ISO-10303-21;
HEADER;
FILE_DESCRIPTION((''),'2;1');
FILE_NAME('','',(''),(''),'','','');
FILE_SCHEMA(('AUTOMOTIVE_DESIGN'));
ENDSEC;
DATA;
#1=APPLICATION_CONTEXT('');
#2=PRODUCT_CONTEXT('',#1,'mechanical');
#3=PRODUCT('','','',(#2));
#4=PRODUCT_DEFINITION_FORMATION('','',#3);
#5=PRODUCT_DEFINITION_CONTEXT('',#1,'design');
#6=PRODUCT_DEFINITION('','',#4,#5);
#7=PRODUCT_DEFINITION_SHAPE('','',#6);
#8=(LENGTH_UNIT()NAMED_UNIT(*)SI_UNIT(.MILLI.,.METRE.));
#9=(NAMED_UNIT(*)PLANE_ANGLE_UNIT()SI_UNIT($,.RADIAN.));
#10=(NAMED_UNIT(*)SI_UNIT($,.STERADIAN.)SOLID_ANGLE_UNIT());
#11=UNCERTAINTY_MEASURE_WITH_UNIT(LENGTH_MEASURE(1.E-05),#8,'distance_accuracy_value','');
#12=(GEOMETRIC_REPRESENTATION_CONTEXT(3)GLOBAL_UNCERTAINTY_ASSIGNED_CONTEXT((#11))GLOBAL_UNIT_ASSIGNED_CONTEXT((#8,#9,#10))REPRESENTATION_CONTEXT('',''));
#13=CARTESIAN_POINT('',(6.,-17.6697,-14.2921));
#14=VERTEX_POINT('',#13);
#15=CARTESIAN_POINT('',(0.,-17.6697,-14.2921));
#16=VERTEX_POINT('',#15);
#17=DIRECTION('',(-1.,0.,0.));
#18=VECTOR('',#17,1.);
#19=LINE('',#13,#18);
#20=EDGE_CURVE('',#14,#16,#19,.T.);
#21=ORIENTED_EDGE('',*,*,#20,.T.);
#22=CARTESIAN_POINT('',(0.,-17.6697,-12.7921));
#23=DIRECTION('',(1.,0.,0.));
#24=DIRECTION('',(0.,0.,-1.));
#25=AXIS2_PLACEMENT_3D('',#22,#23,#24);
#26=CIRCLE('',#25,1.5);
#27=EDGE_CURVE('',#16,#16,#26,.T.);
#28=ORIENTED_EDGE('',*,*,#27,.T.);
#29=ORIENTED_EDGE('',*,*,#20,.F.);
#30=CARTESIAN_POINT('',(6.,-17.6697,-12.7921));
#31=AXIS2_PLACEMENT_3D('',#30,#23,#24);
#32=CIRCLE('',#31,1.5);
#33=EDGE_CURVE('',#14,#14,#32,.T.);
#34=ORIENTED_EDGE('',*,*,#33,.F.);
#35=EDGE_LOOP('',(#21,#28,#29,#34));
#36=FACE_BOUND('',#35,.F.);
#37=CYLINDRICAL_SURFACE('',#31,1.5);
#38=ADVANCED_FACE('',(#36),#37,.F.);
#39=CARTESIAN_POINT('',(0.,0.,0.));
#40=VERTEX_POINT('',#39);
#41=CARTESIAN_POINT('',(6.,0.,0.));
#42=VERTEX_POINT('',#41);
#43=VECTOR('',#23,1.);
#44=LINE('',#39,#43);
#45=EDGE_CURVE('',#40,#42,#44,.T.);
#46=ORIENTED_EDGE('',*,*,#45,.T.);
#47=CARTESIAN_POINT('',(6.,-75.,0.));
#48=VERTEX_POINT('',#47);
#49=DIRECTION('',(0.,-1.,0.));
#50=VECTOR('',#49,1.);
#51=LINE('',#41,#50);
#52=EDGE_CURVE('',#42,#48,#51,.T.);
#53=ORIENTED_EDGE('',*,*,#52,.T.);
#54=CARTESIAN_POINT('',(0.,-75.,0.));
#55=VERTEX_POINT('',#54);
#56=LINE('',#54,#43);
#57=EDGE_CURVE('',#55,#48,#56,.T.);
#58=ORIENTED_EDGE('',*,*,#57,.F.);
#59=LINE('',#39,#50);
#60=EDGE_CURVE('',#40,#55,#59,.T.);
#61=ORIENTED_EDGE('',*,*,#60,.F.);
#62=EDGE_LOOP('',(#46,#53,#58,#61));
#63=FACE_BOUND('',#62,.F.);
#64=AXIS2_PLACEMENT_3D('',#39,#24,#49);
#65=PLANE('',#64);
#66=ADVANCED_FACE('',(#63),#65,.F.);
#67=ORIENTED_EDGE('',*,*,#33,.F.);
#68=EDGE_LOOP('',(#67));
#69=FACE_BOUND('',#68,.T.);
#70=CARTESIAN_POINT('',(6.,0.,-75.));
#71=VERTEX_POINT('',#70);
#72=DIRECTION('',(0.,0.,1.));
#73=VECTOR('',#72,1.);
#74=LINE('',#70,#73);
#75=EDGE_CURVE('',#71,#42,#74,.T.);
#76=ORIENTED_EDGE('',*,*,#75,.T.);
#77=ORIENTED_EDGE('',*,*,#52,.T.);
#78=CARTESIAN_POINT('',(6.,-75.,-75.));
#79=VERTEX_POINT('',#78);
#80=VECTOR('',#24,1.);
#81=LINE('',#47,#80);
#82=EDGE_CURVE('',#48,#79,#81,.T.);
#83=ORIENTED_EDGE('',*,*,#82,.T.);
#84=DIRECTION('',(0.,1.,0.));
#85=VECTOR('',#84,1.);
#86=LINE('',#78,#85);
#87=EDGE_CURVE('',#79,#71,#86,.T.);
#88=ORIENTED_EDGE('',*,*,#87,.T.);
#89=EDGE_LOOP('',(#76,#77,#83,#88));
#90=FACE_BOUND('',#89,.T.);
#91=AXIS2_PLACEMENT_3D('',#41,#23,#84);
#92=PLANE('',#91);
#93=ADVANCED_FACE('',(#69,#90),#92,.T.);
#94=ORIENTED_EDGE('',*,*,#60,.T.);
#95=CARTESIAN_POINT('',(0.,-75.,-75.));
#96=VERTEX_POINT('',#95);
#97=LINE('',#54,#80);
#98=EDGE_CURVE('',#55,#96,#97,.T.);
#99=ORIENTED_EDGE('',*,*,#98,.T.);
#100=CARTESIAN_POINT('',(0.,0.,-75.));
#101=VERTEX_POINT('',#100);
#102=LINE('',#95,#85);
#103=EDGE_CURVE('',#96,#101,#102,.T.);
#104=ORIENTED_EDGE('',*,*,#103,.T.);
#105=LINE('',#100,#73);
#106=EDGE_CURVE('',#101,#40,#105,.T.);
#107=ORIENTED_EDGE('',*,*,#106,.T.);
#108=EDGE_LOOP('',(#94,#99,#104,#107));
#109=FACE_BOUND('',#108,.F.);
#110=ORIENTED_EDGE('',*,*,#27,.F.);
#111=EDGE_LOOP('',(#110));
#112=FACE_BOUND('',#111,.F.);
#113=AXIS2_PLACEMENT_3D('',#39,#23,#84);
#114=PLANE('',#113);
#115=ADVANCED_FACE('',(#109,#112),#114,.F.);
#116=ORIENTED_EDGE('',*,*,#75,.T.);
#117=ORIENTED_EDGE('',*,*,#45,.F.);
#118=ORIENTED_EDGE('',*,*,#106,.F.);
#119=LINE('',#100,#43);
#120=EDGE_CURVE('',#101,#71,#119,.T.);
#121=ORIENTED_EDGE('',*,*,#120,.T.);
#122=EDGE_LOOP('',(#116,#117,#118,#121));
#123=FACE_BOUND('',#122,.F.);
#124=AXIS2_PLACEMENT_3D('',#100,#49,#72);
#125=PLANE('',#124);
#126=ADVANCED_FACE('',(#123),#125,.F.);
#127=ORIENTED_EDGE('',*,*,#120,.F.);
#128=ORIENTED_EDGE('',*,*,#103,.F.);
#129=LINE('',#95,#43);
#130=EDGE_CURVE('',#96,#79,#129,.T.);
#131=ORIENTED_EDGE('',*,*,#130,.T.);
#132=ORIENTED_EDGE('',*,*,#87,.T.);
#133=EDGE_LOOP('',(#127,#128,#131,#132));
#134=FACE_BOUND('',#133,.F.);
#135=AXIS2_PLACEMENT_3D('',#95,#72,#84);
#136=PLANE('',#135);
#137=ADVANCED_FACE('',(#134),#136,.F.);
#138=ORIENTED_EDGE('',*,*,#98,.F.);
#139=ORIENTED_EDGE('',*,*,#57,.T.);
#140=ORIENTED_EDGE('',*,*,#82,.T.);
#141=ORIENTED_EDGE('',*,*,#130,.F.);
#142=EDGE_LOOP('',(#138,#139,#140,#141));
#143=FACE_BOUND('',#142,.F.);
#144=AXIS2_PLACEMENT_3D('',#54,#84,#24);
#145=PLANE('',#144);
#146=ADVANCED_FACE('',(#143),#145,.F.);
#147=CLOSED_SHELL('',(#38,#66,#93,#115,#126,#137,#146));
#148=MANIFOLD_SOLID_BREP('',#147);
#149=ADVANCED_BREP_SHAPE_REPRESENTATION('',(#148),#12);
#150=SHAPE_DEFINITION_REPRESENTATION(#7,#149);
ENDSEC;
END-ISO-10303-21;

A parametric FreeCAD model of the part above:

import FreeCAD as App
import Part
import Sketcher

V = App.Vector


def add_polygon(sketch, points):
    """Adds a closed chain of lines whose ends are joined by coincident constraints."""
    first, n = sketch.GeometryCount, len(points)
    for a, b in zip(points, points[1:] + points[:1]):
        sketch.addGeometry(Part.LineSegment(App.Vector(*a, 0), App.Vector(*b, 0)), False)
    for i in range(n):
        sketch.addConstraint(Sketcher.Constraint("Coincident", first + i, 2, first + (i + 1) % n, 1))

doc = App.newDocument("Part")
body = doc.addObject("PartDesign::Body", "Body")

sketch1 = body.newObject("Sketcher::SketchObject", "Sketch")
sketch1.AttachmentSupport = (doc.getObject("YZ_Plane"), [""])
sketch1.MapMode = "FlatFace"
add_polygon(sketch1, [(0, -75), (0, 0), (-75, 0), (-75, -75)])
sketch1.addConstraint([
    Sketcher.Constraint("Vertical", 0),
    Sketcher.Constraint("Horizontal", 1),
    Sketcher.Constraint("Vertical", 2),
    Sketcher.Constraint("Horizontal", 3),
    Sketcher.Constraint("Coincident", 0, 2, -1, 1),
    Sketcher.Constraint("Equal", 3, 0),
    Sketcher.Constraint("DistanceX", 1, 2, 1, 1, 75.0),
])
pad1 = body.newObject("PartDesign::Pad", "Pad")
pad1.Profile = sketch1
pad1.Length = 6

sketch2 = body.newObject("Sketcher::SketchObject", "Sketch001")
sketch2.AttachmentSupport = (doc.getObject("YZ_Plane"), [""])
sketch2.MapMode = "FlatFace"
sketch2.AttachmentOffset = App.Placement(V(0, 0, 6), App.Rotation())
sketch2.addGeometry(Part.Circle(V(-17.7, -12.8, 0), V(0, 0, 1), 1.5), False)
sketch2.addConstraint([
    Sketcher.Constraint("Diameter", 0, 3.0),
    Sketcher.Constraint("DistanceY", 0, 3, -1, 1, 12.792),
    Sketcher.Constraint("DistanceX", 0, 3, -1, 1, 17.6697),
])
pocket1 = body.newObject("PartDesign::Pocket", "Pocket")
pocket1.Profile = sketch2
pocket1.Length = 8.2875

doc.recompute()
